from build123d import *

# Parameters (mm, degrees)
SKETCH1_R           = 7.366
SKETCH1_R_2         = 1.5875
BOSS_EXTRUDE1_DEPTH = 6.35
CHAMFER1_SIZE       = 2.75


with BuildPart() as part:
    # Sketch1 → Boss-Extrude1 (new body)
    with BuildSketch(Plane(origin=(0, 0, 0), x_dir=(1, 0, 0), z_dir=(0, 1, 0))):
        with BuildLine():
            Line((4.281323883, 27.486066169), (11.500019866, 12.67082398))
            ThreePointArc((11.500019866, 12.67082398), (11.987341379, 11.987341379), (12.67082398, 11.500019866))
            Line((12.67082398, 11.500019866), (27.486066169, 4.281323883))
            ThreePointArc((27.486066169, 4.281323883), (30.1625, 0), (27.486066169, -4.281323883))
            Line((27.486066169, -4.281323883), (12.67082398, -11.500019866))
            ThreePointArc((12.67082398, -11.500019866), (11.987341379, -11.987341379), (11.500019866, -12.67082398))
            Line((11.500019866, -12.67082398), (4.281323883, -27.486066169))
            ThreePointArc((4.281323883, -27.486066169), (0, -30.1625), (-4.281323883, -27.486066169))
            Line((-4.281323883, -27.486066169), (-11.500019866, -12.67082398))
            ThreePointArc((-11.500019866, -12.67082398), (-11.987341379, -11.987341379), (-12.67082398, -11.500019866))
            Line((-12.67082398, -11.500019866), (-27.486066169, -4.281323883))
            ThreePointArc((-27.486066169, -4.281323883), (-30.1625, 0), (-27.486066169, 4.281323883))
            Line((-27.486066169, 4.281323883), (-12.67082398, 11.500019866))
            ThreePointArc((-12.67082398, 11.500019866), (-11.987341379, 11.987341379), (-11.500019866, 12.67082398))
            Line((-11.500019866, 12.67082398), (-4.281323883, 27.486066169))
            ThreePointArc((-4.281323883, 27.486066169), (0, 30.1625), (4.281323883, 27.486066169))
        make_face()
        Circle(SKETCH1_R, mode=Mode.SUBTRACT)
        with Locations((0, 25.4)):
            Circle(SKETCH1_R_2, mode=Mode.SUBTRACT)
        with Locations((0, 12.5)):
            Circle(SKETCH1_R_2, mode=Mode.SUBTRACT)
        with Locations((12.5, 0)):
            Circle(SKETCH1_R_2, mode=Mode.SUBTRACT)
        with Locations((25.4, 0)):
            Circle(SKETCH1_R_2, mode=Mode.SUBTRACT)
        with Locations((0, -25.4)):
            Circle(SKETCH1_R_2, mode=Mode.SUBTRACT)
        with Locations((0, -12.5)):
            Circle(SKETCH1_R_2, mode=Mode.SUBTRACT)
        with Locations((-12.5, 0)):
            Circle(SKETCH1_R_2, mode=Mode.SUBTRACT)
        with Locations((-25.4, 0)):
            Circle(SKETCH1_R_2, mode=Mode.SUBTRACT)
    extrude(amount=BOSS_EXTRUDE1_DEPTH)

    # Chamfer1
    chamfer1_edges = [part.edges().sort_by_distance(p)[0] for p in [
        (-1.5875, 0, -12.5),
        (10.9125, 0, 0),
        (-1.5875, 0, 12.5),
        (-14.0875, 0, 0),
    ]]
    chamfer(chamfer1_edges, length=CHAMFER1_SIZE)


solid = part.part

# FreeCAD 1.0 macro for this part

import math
import FreeCAD as App
import Part
import Sketcher
from FreeCAD import Vector
Q = App.Units.Quantity


def edges_at(feature, points):
    """Names of the edges that pass closest to the given points."""
    edges = feature.Shape.Edges
    near = lambda p: min(range(len(edges)), key=lambda i: edges[i].distToShape(Part.Vertex(*p))[0])
    return sorted({f"Edge{near(p) + 1}" for p in points})

doc = App.newDocument("Part")
params = doc.addObject("Spreadsheet::Sheet", "Params")
for row, (alias, value) in enumerate([
    ("sketch1_radius", "0.1 in"),
    ("sketch1_diameter", "0.58 in"),
    ("sketch1_diameter2", "0.125 in"),
    ("sketch1_radius2", "0.1875 in"),
    ("pad1_length", "0.25 in"),
    ("chamfer_size", "2.75 mm"),
], start=1):
    params.set(f"A{row}", alias)
    params.set(f"B{row}", "=" + value)
    params.setAlias(f"B{row}", alias)

body = doc.addObject("PartDesign::Body", "Body")

sketch1 = doc.addObject("Sketcher::SketchObject", "Sketch")
body.addObject(sketch1)
sketch1.AttachmentSupport = (doc.XZ_Plane, [""])
sketch1.MapMode = "FlatFace"
sketch1.addGeometry(Part.LineSegment(Vector(11.5, -12.7, 0), Vector(4.3, -27.5, 0)), False)
sketch1.addGeometry(Part.ArcOfCircle(Part.Circle(Vector(0, -25.4, 0), Vector(0, 0, 1), 4.8), math.radians(-154), math.radians(-26)), False)
sketch1.addGeometry(Part.LineSegment(Vector(-4.3, -27.5, 0), Vector(-11.5, -12.7, 0)), False)
sketch1.addGeometry(Part.ArcOfCircle(Part.Circle(Vector(-13.8, -13.8, 0), Vector(0, 0, 1), 2.5), math.radians(26), math.radians(64)), False)
sketch1.addGeometry(Part.LineSegment(Vector(-12.7, -11.5, 0), Vector(-27.5, -4.3, 0)), False)
sketch1.addGeometry(Part.ArcOfCircle(Part.Circle(Vector(-25.4, 0, 0), Vector(0, 0, 1), 4.8), math.radians(116), math.radians(244)), False)
sketch1.addGeometry(Part.LineSegment(Vector(-27.5, 4.3, 0), Vector(-12.7, 11.5, 0)), False)
sketch1.addGeometry(Part.ArcOfCircle(Part.Circle(Vector(-13.8, 13.8, 0), Vector(0, 0, 1), 2.5), math.radians(-64), math.radians(-26)), False)
sketch1.addGeometry(Part.LineSegment(Vector(-11.5, 12.7, 0), Vector(-4.3, 27.5, 0)), False)
sketch1.addGeometry(Part.ArcOfCircle(Part.Circle(Vector(0, 25.4, 0), Vector(0, 0, 1), 4.8), math.radians(26), math.radians(154)), False)
sketch1.addGeometry(Part.LineSegment(Vector(4.3, 27.5, 0), Vector(11.5, 12.7, 0)), False)
sketch1.addGeometry(Part.ArcOfCircle(Part.Circle(Vector(13.8, 13.8, 0), Vector(0, 0, 1), 2.5), math.radians(-154), math.radians(-116)), False)
sketch1.addGeometry(Part.LineSegment(Vector(12.7, 11.5, 0), Vector(27.5, 4.3, 0)), False)
sketch1.addGeometry(Part.ArcOfCircle(Part.Circle(Vector(25.4, 0, 0), Vector(0, 0, 1), 4.8), math.radians(-64), math.radians(64)), False)
sketch1.addGeometry(Part.LineSegment(Vector(27.5, -4.3, 0), Vector(12.7, -11.5, 0)), False)
sketch1.addGeometry(Part.ArcOfCircle(Part.Circle(Vector(13.8, -13.8, 0), Vector(0, 0, 1), 2.5), math.radians(116), math.radians(154)), False)
sketch1.addGeometry(Part.Circle(Vector(0, 25.4, 0), Vector(0, 0, 1), 1.6), False)
sketch1.addGeometry(Part.Circle(Vector(0, 12.5, 0), Vector(0, 0, 1), 1.6), False)
sketch1.addGeometry(Part.Circle(Vector(25.4, 0, 0), Vector(0, 0, 1), 1.6), False)
sketch1.addGeometry(Part.Circle(Vector(12.5, 0, 0), Vector(0, 0, 1), 1.6), False)
sketch1.addGeometry(Part.Circle(Vector(0, 0, 0), Vector(0, 0, 1), 7.4), False)
sketch1.addGeometry(Part.Circle(Vector(-12.5, 0, 0), Vector(0, 0, 1), 1.6), False)
sketch1.addGeometry(Part.Circle(Vector(0, -12.5, 0), Vector(0, 0, 1), 1.6), False)
sketch1.addGeometry(Part.Circle(Vector(-25.4, 0, 0), Vector(0, 0, 1), 1.6), False)
sketch1.addGeometry(Part.Circle(Vector(0, -25.4, 0), Vector(0, 0, 1), 1.6), False)
sketch1.addConstraint(Sketcher.Constraint("Tangent", 0, 2, 1, 2))
sketch1.addConstraint(Sketcher.Constraint("Tangent", 1, 1, 2, 1))
sketch1.addConstraint(Sketcher.Constraint("Tangent", 2, 2, 3, 1))
sketch1.addConstraint(Sketcher.Constraint("Tangent", 3, 2, 4, 1))
sketch1.addConstraint(Sketcher.Constraint("Tangent", 4, 2, 5, 2))
sketch1.addConstraint(Sketcher.Constraint("Tangent", 5, 1, 6, 1))
sketch1.addConstraint(Sketcher.Constraint("Tangent", 6, 2, 7, 1))
sketch1.addConstraint(Sketcher.Constraint("Tangent", 7, 2, 8, 1))
sketch1.addConstraint(Sketcher.Constraint("Tangent", 8, 2, 9, 2))
sketch1.addConstraint(Sketcher.Constraint("Tangent", 9, 1, 10, 1))
sketch1.addConstraint(Sketcher.Constraint("Tangent", 10, 2, 11, 1))
sketch1.addConstraint(Sketcher.Constraint("Tangent", 11, 2, 12, 1))
sketch1.addConstraint(Sketcher.Constraint("Tangent", 12, 2, 13, 2))
sketch1.addConstraint(Sketcher.Constraint("Tangent", 13, 1, 14, 1))
sketch1.addConstraint(Sketcher.Constraint("Tangent", 14, 2, 15, 1))
sketch1.addConstraint(Sketcher.Constraint("Tangent", 15, 2, 0, 1))
sketch1.addConstraint(Sketcher.Constraint("Coincident", 20, 3, -1, 1))
sketch1.addConstraint(Sketcher.Constraint("Coincident", 16, 3, 9, 3))
sketch1.addConstraint(Sketcher.Constraint("Coincident", 18, 3, 13, 3))
sketch1.addConstraint(Sketcher.Constraint("Coincident", 23, 3, 5, 3))
sketch1.addConstraint(Sketcher.Constraint("Coincident", 24, 3, 1, 3))
sketch1.addConstraint(Sketcher.Constraint("Equal", 1, 5))
sketch1.addConstraint(Sketcher.Constraint("Equal", 3, 7))
sketch1.addConstraint(Sketcher.Constraint("Equal", 5, 9))
sketch1.addConstraint(Sketcher.Constraint("Equal", 7, 11))
sketch1.addConstraint(Sketcher.Constraint("Equal", 9, 13))
sketch1.addConstraint(Sketcher.Constraint("Equal", 11, 15))
sketch1.addConstraint(Sketcher.Constraint("Equal", 16, 17))
sketch1.addConstraint(Sketcher.Constraint("Equal", 17, 18))
sketch1.addConstraint(Sketcher.Constraint("Equal", 18, 19))
sketch1.addConstraint(Sketcher.Constraint("Equal", 19, 21))
sketch1.addConstraint(Sketcher.Constraint("Equal", 21, 22))
sketch1.addConstraint(Sketcher.Constraint("Equal", 22, 23))
sketch1.addConstraint(Sketcher.Constraint("Equal", 23, 24))
sketch1.addConstraint(Sketcher.Constraint("Symmetric", 1, 3, 9, 3, -1, 1))
sketch1.addConstraint(Sketcher.Constraint("Symmetric", 3, 3, 11, 3, -1, 1))
sketch1.addConstraint(Sketcher.Constraint("Symmetric", 5, 3, 13, 3, -1, 1))
sketch1.addConstraint(Sketcher.Constraint("Symmetric", 7, 3, 15, 3, -1, 1))
sketch1.addConstraint(Sketcher.Constraint("Symmetric", 19, 3, 21, 3, -1, 1))
sketch1.addConstraint(Sketcher.Constraint("Symmetric", 17, 3, 22, 3, -1, 1))
sketch1.addConstraint(Sketcher.Constraint("Symmetric", 7, 3, 11, 3, -2))
sketch1.addConstraint(Sketcher.Constraint("PointOnObject", 1, 3, -2))
sketch1.addConstraint(Sketcher.Constraint("PointOnObject", 5, 3, -1))
sketch1.addConstraint(Sketcher.Constraint("PointOnObject", 17, 3, -2))
sketch1.addConstraint(Sketcher.Constraint("PointOnObject", 19, 3, -1))
sketch1.addConstraint(Sketcher.Constraint("Perpendicular", 0, 4))
sketch1.addConstraint(Sketcher.Constraint("Equal", 2, 4))
sketch1.addConstraint(Sketcher.Constraint("Radius", 3, Q("0.1 in")))
sketch1.addConstraint(Sketcher.Constraint("Diameter", 20, Q("0.58 in")))
sketch1.addConstraint(Sketcher.Constraint("Diameter", 16, Q("0.125 in")))
sketch1.addConstraint(Sketcher.Constraint("DistanceY", 1, 3, -1, 1, Q("1 in")))
sketch1.addConstraint(Sketcher.Constraint("Radius", 1, Q("0.1875 in")))
sketch1.addConstraint(Sketcher.Constraint("DistanceY", -1, 1, 17, 3, Q("12.5 mm")))
sketch1.addConstraint(Sketcher.Constraint("DistanceX", -1, 1, 19, 3, Q("12.5 mm")))
sketch1.addConstraint(Sketcher.Constraint("Distance", 0, Q("16.480321 mm")))
sketch1.setExpression("Constraints[47]", "Params.sketch1_radius")
sketch1.setExpression("Constraints[48]", "Params.sketch1_diameter")
sketch1.setExpression("Constraints[49]", "Params.sketch1_diameter2")
sketch1.setExpression("Constraints[51]", "Params.sketch1_radius2")
pad1 = doc.addObject("PartDesign::Pad", "Pad")
body.addObject(pad1)
pad1.Profile = sketch1
pad1.setExpression("Length", "Params.pad1_length")
pad1.Reversed = True
doc.recompute()

chamfer = doc.addObject("PartDesign::Chamfer", "Chamfer")
body.addObject(chamfer)
chamfer.Base = (pad1, edges_at(pad1, [
    (-1.587, 0, -12.5),
    (10.912, 0, 0),
    (-1.587, 0, 12.5),
    (-14.088, 0, 0),
]))
chamfer.setExpression("Size", "Params.chamfer_size")

doc.recompute()
